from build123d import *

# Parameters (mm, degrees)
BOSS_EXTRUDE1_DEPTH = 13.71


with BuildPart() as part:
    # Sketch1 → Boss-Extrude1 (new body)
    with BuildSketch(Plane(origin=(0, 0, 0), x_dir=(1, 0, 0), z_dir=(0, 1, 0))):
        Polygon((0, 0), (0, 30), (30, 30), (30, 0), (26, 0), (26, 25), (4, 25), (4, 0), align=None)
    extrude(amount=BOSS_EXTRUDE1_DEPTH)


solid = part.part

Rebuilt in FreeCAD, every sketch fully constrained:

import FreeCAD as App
import Part
import Sketcher
Q = App.Units.Quantity

doc = App.newDocument("Part")
body = doc.addObject("PartDesign::Body", "Body")

# Sketch on XZ plane
sketch1 = body.newObject("Sketcher::SketchObject", "Sketch")
sketch1.AttachmentSupport = (doc.getObject("XZ_Plane"), [""])
sketch1.MapMode = "FlatFace"
sketch1.addGeometry([
    Part.LineSegment(App.Vector(0, -30, 0), App.Vector(0, 0, 0)),  # 0
    Part.LineSegment(App.Vector(0, 0, 0), App.Vector(4, 0, 0)),  # 1
    Part.LineSegment(App.Vector(4, 0, 0), App.Vector(4, -25, 0)),  # 2
    Part.LineSegment(App.Vector(4, -25, 0), App.Vector(26, -25, 0)),  # 3
    Part.LineSegment(App.Vector(26, -25, 0), App.Vector(26, 0, 0)),  # 4
    Part.LineSegment(App.Vector(26, 0, 0), App.Vector(30, 0, 0)),  # 5
    Part.LineSegment(App.Vector(30, 0, 0), App.Vector(30, -30, 0)),  # 6
    Part.LineSegment(App.Vector(30, -30, 0), App.Vector(0, -30, 0)),  # 7
], False)
sketch1.addConstraint([
    Sketcher.Constraint("Coincident", 0, 2, 1, 1),
    Sketcher.Constraint("Coincident", 1, 2, 2, 1),
    Sketcher.Constraint("Coincident", 2, 2, 3, 1),
    Sketcher.Constraint("Coincident", 3, 2, 4, 1),
    Sketcher.Constraint("Coincident", 4, 2, 5, 1),
    Sketcher.Constraint("Coincident", 5, 2, 6, 1),
    Sketcher.Constraint("Coincident", 6, 2, 7, 1),
    Sketcher.Constraint("Coincident", 7, 2, 0, 1),
    Sketcher.Constraint("Vertical", 0),
    Sketcher.Constraint("Horizontal", 1),
    Sketcher.Constraint("Vertical", 2),
    Sketcher.Constraint("Horizontal", 3),
    Sketcher.Constraint("Vertical", 4),
    Sketcher.Constraint("Horizontal", 5),
    Sketcher.Constraint("Vertical", 6),
    Sketcher.Constraint("Horizontal", 7),
    Sketcher.Constraint("Coincident", 0, 2, -1, 1),
    Sketcher.Constraint("PointOnObject", 4, 2, -1),
    Sketcher.Constraint("Equal", 1, 5),
    Sketcher.Constraint("Equal", 7, 0),
    Sketcher.Constraint("DistanceX", 1, 1, 1, 2, Q("4 mm")),
    Sketcher.Constraint("DistanceX", 3, 1, 3, 2, Q("22 mm")),
    Sketcher.Constraint("DistanceY", 2, 2, 2, 1, Q("25 mm")),
])
pad1 = body.newObject("PartDesign::Pad", "Pad")
pad1.Profile = sketch1
pad1.Length = 13.71
pad1.Reversed = True

doc.recompute()
